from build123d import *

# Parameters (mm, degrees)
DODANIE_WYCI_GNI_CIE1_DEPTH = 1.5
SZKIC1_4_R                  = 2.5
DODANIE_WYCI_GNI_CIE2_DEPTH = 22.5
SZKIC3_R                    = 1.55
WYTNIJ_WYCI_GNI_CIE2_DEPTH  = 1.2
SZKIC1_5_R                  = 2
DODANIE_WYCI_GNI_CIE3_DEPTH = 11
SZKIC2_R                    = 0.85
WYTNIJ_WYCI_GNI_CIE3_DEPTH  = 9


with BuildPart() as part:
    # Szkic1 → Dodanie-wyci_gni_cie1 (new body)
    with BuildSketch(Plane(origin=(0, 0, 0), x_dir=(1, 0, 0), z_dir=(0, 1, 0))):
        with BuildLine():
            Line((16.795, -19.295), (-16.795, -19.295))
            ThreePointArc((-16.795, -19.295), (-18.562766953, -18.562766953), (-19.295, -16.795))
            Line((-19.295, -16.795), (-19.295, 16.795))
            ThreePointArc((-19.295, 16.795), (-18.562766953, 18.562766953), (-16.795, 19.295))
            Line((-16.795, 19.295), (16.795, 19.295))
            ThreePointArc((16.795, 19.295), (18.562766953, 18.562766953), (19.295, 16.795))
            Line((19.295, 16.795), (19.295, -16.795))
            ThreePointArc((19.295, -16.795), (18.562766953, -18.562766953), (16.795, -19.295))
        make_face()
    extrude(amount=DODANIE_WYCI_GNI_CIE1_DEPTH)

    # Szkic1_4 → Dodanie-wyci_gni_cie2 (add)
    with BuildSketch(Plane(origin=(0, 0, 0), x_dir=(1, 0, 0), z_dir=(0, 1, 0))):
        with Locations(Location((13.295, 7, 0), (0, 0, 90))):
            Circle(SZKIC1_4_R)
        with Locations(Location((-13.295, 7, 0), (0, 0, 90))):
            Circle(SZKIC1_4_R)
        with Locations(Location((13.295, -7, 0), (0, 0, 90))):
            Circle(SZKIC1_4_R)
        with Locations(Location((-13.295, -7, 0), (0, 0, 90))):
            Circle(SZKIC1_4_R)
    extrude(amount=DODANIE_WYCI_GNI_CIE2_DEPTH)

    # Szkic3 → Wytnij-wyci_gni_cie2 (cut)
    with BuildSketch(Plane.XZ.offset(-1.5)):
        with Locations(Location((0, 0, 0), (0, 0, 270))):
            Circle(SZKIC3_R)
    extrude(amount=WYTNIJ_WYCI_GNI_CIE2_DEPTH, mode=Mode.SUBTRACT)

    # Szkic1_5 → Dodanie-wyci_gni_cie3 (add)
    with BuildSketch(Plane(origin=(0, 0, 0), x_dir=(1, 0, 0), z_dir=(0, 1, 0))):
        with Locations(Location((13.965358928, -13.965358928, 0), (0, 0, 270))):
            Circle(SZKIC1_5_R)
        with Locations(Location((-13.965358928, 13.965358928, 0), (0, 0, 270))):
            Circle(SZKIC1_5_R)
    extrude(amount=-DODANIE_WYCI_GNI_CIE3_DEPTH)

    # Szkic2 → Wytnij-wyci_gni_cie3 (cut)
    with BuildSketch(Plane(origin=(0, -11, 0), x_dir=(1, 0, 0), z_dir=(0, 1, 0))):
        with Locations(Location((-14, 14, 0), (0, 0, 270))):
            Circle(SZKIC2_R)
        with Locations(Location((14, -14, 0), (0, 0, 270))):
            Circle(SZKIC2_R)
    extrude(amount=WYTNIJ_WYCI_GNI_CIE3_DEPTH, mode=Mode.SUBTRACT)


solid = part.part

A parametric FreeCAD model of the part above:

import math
import FreeCAD as App
import Part
import Sketcher
from FreeCAD import Vector

doc = App.newDocument("Part")
body = doc.addObject("PartDesign::Body", "Body")

sketch1 = body.newObject("Sketcher::SketchObject", "Sketch")
sketch1.AttachmentSupport = (doc.getObject("XZ_Plane"), [""])
sketch1.MapMode = "FlatFace"
sketch1.addGeometry([
    Part.LineSegment(Vector(-16.795, 19.295, 0), Vector(16.795, 19.295, 0)),
    Part.ArcOfCircle(Part.Circle(Vector(16.795, 16.795, 0), Vector(0, 0, 1), 2.5), math.radians(0), math.radians(90)),
    Part.LineSegment(Vector(19.295, 16.795, 0), Vector(19.295, -16.795, 0)),
    Part.ArcOfCircle(Part.Circle(Vector(16.795, -16.795, 0), Vector(0, 0, 1), 2.5), math.radians(-90), math.radians(0)),
    Part.LineSegment(Vector(16.795, -19.295, 0), Vector(-16.795, -19.295, 0)),
    Part.ArcOfCircle(Part.Circle(Vector(-16.795, -16.795, 0), Vector(0, 0, 1), 2.5), math.radians(180), math.radians(270)),
    Part.LineSegment(Vector(-19.295, -16.795, 0), Vector(-19.295, 16.795, 0)),
    Part.ArcOfCircle(Part.Circle(Vector(-16.795, 16.795, 0), Vector(0, 0, 1), 2.5), math.radians(90), math.radians(180)),
], False)
sketch1.addConstraint([
    Sketcher.Constraint("Tangent", 0, 2, 1, 2),
    Sketcher.Constraint("Tangent", 1, 1, 2, 1),
    Sketcher.Constraint("Tangent", 2, 2, 3, 2),
    Sketcher.Constraint("Tangent", 3, 1, 4, 1),
    Sketcher.Constraint("Tangent", 4, 2, 5, 2),
    Sketcher.Constraint("Tangent", 5, 1, 6, 1),
    Sketcher.Constraint("Tangent", 6, 2, 7, 2),
    Sketcher.Constraint("Tangent", 7, 1, 0, 1),
    Sketcher.Constraint("Horizontal", 0),
    Sketcher.Constraint("Vertical", 2),
    Sketcher.Constraint("Horizontal", 4),
    Sketcher.Constraint("Vertical", 6),
    Sketcher.Constraint("Equal", 1, 3),
    Sketcher.Constraint("Equal", 3, 5),
    Sketcher.Constraint("Equal", 5, 7),
    Sketcher.Constraint("Symmetric", 1, 3, 5, 3, -1, 1),
    Sketcher.Constraint("Equal", 4, 2),
    Sketcher.Constraint("Radius", 1, 2.5),
    Sketcher.Constraint("DistanceX", 0, 1, 0, 2, 33.59),
])
pad1 = body.newObject("PartDesign::Pad", "Pad")
pad1.Profile = sketch1
pad1.Length = 1.5
pad1.Reversed = True

sketch2 = body.newObject("Sketcher::SketchObject", "Sketch001")
sketch2.AttachmentSupport = (doc.getObject("XZ_Plane"), [""])
sketch2.MapMode = "FlatFace"
sketch2.addGeometry([
    Part.Circle(Vector(13.295, -7, 0), Vector(0, 0, 1), 2.5),
    Part.Circle(Vector(-13.295, -7, 0), Vector(0, 0, 1), 2.5),
    Part.Circle(Vector(13.295, 7, 0), Vector(0, 0, 1), 2.5),
    Part.Circle(Vector(-13.295, 7, 0), Vector(0, 0, 1), 2.5),
], False)
sketch2.addConstraint([
    Sketcher.Constraint("Equal", 0, 1),
    Sketcher.Constraint("Equal", 1, 2),
    Sketcher.Constraint("Equal", 2, 3),
    Sketcher.Constraint("Symmetric", 1, 3, 2, 3, -1, 1),
    Sketcher.Constraint("Symmetric", 0, 3, 3, 3, -1, 1),
    Sketcher.Constraint("Symmetric", 0, 3, 1, 3, -2),
    Sketcher.Constraint("Diameter", 0, 5.0),
    Sketcher.Constraint("DistanceY", 0, 3, -1, 1, 7.0),
    Sketcher.Constraint("DistanceX", 1, 3, 0, 3, 26.59),
])
pad2 = body.newObject("PartDesign::Pad", "Pad001")
pad2.Profile = sketch2
pad2.Length = 22.5
pad2.Reversed = True

sketch3 = body.newObject("Sketcher::SketchObject", "Sketch002")
sketch3.AttachmentSupport = (doc.getObject("XZ_Plane"), [""])
sketch3.MapMode = "FlatFace"
sketch3.AttachmentOffset = App.Placement(Vector(0, 0, -1.5), App.Rotation())
sketch3.addGeometry(Part.Circle(Vector(0, 0, 0), Vector(0, 0, 1), 1.55), False)
sketch3.addConstraint([
    Sketcher.Constraint("Coincident", 0, 3, -1, 1),
    Sketcher.Constraint("Diameter", 0, 3.1),
])
pocket1 = body.newObject("PartDesign::Pocket", "Pocket")
pocket1.Profile = sketch3
pocket1.Length = 1.2
pocket1.Reversed = True

sketch4 = body.newObject("Sketcher::SketchObject", "Sketch003")
sketch4.AttachmentSupport = (doc.getObject("XZ_Plane"), [""])
sketch4.MapMode = "FlatFace"
sketch4.addGeometry([
    Part.Circle(Vector(13.965359, 13.965359, 0), Vector(0, 0, 1), 2),
    Part.Circle(Vector(-13.965359, -13.965359, 0), Vector(0, 0, 1), 2),
], False)
sketch4.addConstraint([
    Sketcher.Constraint("Equal", 0, 1),
    Sketcher.Constraint("Symmetric", 0, 3, 1, 3, -1, 1),
    Sketcher.Constraint("Diameter", 0, 4.0),
    Sketcher.Constraint("DistanceX", -1, 1, 0, 3, 13.965359),
    Sketcher.Constraint("DistanceY", -1, 1, 0, 3, 13.965359),
])
pad3 = body.newObject("PartDesign::Pad", "Pad002")
pad3.Profile = sketch4
pad3.Length = 11

sketch5 = body.newObject("Sketcher::SketchObject", "Sketch004")
sketch5.AttachmentSupport = (doc.getObject("XZ_Plane"), [""])
sketch5.MapMode = "FlatFace"
sketch5.AttachmentOffset = App.Placement(Vector(0, 0, 11), App.Rotation())
sketch5.addGeometry([
    Part.Circle(Vector(-14, -14, 0), Vector(0, 0, 1), 0.85),
    Part.Circle(Vector(14, 14, 0), Vector(0, 0, 1), 0.85),
], False)
sketch5.addConstraint([
    Sketcher.Constraint("Equal", 0, 1),
    Sketcher.Constraint("Symmetric", 0, 3, 1, 3, -1, 1),
    Sketcher.Constraint("Diameter", 0, 1.7),
    Sketcher.Constraint("DistanceX", 0, 3, -1, 1, 14.0),
    Sketcher.Constraint("DistanceY", 0, 3, -1, 1, 14.0),
])
pocket2 = body.newObject("PartDesign::Pocket", "Pocket001")
pocket2.Profile = sketch5
pocket2.Length = 9

doc.recompute()
